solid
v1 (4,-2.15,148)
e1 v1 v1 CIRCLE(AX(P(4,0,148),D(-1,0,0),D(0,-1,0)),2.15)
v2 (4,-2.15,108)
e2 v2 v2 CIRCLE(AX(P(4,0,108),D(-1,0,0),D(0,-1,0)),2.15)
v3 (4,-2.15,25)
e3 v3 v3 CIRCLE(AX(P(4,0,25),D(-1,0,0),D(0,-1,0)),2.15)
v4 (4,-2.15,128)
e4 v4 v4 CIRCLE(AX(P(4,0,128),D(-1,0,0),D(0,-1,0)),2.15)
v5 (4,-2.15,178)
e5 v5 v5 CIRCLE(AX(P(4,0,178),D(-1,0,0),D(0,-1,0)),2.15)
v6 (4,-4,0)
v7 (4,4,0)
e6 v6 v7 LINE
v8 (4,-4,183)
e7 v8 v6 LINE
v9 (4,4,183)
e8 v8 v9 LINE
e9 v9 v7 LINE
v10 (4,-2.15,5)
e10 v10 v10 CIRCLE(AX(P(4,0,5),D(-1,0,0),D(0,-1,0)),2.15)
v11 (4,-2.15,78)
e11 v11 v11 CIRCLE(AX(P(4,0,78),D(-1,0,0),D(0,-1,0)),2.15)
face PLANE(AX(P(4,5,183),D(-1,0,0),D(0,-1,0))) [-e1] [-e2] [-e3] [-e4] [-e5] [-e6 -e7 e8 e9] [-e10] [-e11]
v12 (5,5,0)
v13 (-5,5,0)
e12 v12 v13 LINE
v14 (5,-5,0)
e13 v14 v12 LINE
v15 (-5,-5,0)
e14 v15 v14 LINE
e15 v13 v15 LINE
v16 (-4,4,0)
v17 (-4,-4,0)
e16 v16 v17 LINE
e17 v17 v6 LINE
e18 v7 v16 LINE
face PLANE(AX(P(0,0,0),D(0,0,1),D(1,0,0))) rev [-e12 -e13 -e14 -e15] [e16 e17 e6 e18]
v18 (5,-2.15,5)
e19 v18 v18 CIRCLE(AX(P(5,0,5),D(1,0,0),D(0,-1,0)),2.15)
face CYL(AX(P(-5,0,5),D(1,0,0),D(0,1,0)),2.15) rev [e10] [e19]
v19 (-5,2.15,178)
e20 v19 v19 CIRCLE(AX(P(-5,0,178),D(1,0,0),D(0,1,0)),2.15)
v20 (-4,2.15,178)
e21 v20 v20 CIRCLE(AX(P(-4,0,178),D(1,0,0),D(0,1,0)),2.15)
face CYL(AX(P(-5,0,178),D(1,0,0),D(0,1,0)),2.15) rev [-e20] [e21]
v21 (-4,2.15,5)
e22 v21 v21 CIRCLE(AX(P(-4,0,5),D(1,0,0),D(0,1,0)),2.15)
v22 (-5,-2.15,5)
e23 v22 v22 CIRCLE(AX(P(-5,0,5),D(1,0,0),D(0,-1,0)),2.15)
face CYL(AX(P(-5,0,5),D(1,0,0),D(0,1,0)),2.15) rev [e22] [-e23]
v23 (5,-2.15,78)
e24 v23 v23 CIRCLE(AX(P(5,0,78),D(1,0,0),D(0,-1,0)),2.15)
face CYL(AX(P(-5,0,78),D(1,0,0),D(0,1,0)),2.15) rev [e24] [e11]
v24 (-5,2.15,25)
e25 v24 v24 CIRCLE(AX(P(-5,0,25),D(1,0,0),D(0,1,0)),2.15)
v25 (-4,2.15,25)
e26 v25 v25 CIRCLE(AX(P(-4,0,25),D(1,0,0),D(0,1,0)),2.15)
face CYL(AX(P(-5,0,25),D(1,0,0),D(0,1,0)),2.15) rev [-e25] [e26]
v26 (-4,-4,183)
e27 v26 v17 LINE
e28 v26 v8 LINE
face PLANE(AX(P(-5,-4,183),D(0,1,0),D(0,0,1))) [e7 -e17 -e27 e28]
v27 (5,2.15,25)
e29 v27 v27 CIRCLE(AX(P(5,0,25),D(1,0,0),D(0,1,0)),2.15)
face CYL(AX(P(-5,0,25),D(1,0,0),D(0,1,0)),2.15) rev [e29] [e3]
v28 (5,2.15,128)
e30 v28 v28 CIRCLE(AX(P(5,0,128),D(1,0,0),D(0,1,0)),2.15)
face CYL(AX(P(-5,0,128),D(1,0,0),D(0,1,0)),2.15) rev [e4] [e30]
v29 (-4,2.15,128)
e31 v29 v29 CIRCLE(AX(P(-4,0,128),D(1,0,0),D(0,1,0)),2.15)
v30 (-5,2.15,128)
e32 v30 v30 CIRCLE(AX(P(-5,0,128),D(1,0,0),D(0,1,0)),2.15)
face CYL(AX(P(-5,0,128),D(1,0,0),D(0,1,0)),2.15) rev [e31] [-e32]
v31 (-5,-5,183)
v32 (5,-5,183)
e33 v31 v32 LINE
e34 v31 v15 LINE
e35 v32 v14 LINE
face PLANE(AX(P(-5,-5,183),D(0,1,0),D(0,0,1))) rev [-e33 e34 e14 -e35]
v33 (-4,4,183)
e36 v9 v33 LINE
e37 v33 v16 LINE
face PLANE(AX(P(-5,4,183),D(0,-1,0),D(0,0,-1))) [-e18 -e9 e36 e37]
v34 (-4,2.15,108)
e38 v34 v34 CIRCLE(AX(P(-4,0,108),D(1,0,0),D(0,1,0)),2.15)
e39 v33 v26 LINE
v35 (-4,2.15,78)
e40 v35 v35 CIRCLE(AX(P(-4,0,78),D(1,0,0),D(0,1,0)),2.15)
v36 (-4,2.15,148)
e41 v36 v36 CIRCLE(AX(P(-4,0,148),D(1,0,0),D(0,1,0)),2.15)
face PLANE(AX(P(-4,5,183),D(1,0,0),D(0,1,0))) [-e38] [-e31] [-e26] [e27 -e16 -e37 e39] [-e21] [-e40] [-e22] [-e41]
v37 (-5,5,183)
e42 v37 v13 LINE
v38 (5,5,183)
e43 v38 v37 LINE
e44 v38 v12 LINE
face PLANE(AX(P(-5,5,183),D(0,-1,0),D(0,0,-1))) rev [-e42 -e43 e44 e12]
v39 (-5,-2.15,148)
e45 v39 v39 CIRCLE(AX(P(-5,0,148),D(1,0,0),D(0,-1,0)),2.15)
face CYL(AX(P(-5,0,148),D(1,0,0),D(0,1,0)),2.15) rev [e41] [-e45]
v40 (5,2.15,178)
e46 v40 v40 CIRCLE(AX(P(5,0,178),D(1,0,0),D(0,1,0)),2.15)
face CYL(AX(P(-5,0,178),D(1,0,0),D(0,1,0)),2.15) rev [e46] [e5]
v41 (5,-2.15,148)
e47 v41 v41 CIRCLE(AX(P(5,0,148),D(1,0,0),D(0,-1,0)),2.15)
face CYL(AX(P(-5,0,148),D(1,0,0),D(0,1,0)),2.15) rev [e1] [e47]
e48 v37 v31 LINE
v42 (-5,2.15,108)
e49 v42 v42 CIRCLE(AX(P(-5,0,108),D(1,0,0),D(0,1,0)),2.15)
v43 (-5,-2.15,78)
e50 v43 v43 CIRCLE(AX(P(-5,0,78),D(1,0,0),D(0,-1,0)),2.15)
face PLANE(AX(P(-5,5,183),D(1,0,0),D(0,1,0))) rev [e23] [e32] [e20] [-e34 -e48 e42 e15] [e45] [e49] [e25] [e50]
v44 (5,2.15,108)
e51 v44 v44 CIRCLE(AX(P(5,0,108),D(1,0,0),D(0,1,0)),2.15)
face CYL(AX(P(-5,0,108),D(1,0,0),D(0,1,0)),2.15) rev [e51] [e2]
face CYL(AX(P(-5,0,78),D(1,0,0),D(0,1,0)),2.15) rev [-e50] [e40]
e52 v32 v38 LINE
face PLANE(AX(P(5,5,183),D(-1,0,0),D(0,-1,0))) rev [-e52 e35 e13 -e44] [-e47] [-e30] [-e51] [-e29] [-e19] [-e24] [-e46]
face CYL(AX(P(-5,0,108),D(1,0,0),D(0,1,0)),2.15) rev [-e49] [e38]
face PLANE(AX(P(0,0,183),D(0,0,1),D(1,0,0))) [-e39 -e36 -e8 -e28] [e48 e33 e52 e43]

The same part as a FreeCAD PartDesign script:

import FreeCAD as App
import Part
import Sketcher

doc = App.newDocument("Part")
body = doc.addObject("PartDesign::Body", "Body")

# Sketch on XY plane
sketch1 = body.newObject("Sketcher::SketchObject", "Sketch")
sketch1.AttachmentSupport = (doc.getObject("XY_Plane"), [""])
sketch1.MapMode = "FlatFace"
sketch1.addGeometry(Part.LineSegment(App.Vector(-5, 5, 0), App.Vector(-5, -5, 0)), False)
sketch1.addGeometry(Part.LineSegment(App.Vector(-5, -5, 0), App.Vector(5, -5, 0)), False)
sketch1.addGeometry(Part.LineSegment(App.Vector(5, -5, 0), App.Vector(5, 5, 0)), False)
sketch1.addGeometry(Part.LineSegment(App.Vector(5, 5, 0), App.Vector(-5, 5, 0)), False)
sketch1.addGeometry(Part.LineSegment(App.Vector(4, -4, 0), App.Vector(-4, -4, 0)), False)
sketch1.addGeometry(Part.LineSegment(App.Vector(-4, -4, 0), App.Vector(-4, 4, 0)), False)
sketch1.addGeometry(Part.LineSegment(App.Vector(-4, 4, 0), App.Vector(4, 4, 0)), False)
sketch1.addGeometry(Part.LineSegment(App.Vector(4, 4, 0), App.Vector(4, -4, 0)), False)
sketch1.addConstraint(Sketcher.Constraint("Coincident", 0, 2, 1, 1))
sketch1.addConstraint(Sketcher.Constraint("Coincident", 1, 2, 2, 1))
sketch1.addConstraint(Sketcher.Constraint("Coincident", 2, 2, 3, 1))
sketch1.addConstraint(Sketcher.Constraint("Coincident", 3, 2, 0, 1))
sketch1.addConstraint(Sketcher.Constraint("Coincident", 4, 2, 5, 1))
sketch1.addConstraint(Sketcher.Constraint("Coincident", 5, 2, 6, 1))
sketch1.addConstraint(Sketcher.Constraint("Coincident", 6, 2, 7, 1))
sketch1.addConstraint(Sketcher.Constraint("Coincident", 7, 2, 4, 1))
sketch1.addConstraint(Sketcher.Constraint("Vertical", 0))
sketch1.addConstraint(Sketcher.Constraint("Horizontal", 1))
sketch1.addConstraint(Sketcher.Constraint("Vertical", 2))
sketch1.addConstraint(Sketcher.Constraint("Horizontal", 3))
sketch1.addConstraint(Sketcher.Constraint("Horizontal", 4))
sketch1.addConstraint(Sketcher.Constraint("Vertical", 5))
sketch1.addConstraint(Sketcher.Constraint("Horizontal", 6))
sketch1.addConstraint(Sketcher.Constraint("Vertical", 7))
sketch1.addConstraint(Sketcher.Constraint("Symmetric", 0, 2, 2, 2, -1, 1))
sketch1.addConstraint(Sketcher.Constraint("Symmetric", 4, 2, 6, 2, -1, 1))
sketch1.addConstraint(Sketcher.Constraint("Equal", 3, 0))
sketch1.addConstraint(Sketcher.Constraint("Equal", 6, 5))
sketch1.addConstraint(Sketcher.Constraint("DistanceX", 1, 1, 1, 2, 10.0))
sketch1.addConstraint(Sketcher.Constraint("DistanceX", 4, 2, 4, 1, 8.0))
pad1 = body.newObject("PartDesign::Pad", "Pad")
pad1.Profile = sketch1
pad1.Length = 183

# Sketch on YZ plane
sketch2 = body.newObject("Sketcher::SketchObject", "Sketch001")
sketch2.AttachmentSupport = (doc.getObject("YZ_Plane"), [""])
sketch2.MapMode = "FlatFace"
sketch2.AttachmentOffset = App.Placement(App.Vector(0, 0, 5), App.Rotation())
sketch2.addGeometry(Part.Circle(App.Vector(0, 128, 0), App.Vector(0, 0, 1), 2.1), False)
sketch2.addGeometry(Part.Circle(App.Vector(0, 108, 0), App.Vector(0, 0, 1), 2.1), False)
sketch2.addGeometry(Part.Circle(App.Vector(0, 148, 0), App.Vector(0, 0, 1), 2.1), False)
sketch2.addGeometry(Part.Circle(App.Vector(0, 178, 0), App.Vector(0, 0, 1), 2.1), False)
sketch2.addGeometry(Part.Circle(App.Vector(0, 78, 0), App.Vector(0, 0, 1), 2.1), False)
sketch2.addGeometry(Part.Circle(App.Vector(0, 5, 0), App.Vector(0, 0, 1), 2.1), False)
sketch2.addGeometry(Part.Circle(App.Vector(0, 25, 0), App.Vector(0, 0, 1), 2.1), False)
sketch2.addConstraint(Sketcher.Constraint("Equal", 0, 1))
sketch2.addConstraint(Sketcher.Constraint("Equal", 1, 2))
sketch2.addConstraint(Sketcher.Constraint("Equal", 2, 3))
sketch2.addConstraint(Sketcher.Constraint("Equal", 3, 4))
sketch2.addConstraint(Sketcher.Constraint("Equal", 4, 5))
sketch2.addConstraint(Sketcher.Constraint("Equal", 5, 6))
sketch2.addConstraint(Sketcher.Constraint("PointOnObject", 0, 3, -2))
sketch2.addConstraint(Sketcher.Constraint("PointOnObject", 1, 3, -2))
sketch2.addConstraint(Sketcher.Constraint("PointOnObject", 2, 3, -2))
sketch2.addConstraint(Sketcher.Constraint("PointOnObject", 3, 3, -2))
sketch2.addConstraint(Sketcher.Constraint("PointOnObject", 4, 3, -2))
sketch2.addConstraint(Sketcher.Constraint("PointOnObject", 5, 3, -2))
sketch2.addConstraint(Sketcher.Constraint("PointOnObject", 6, 3, -2))
sketch2.addConstraint(Sketcher.Constraint("Diameter", 0, 4.3))
sketch2.addConstraint(Sketcher.Constraint("DistanceY", -1, 1, 0, 3, 128.0))
sketch2.addConstraint(Sketcher.Constraint("DistanceY", -1, 1, 1, 3, 108.0))
sketch2.addConstraint(Sketcher.Constraint("DistanceY", -1, 1, 2, 3, 148.0))
sketch2.addConstraint(Sketcher.Constraint("DistanceY", -1, 1, 3, 3, 178.0))
sketch2.addConstraint(Sketcher.Constraint("DistanceY", -1, 1, 4, 3, 78.0))
sketch2.addConstraint(Sketcher.Constraint("DistanceY", -1, 1, 5, 3, 5.0))
sketch2.addConstraint(Sketcher.Constraint("DistanceY", -1, 1, 6, 3, 25.0))
pocket1 = body.newObject("PartDesign::Pocket", "Pocket")
pocket1.Profile = sketch2
pocket1.Type = "ThroughAll"

doc.recompute()
